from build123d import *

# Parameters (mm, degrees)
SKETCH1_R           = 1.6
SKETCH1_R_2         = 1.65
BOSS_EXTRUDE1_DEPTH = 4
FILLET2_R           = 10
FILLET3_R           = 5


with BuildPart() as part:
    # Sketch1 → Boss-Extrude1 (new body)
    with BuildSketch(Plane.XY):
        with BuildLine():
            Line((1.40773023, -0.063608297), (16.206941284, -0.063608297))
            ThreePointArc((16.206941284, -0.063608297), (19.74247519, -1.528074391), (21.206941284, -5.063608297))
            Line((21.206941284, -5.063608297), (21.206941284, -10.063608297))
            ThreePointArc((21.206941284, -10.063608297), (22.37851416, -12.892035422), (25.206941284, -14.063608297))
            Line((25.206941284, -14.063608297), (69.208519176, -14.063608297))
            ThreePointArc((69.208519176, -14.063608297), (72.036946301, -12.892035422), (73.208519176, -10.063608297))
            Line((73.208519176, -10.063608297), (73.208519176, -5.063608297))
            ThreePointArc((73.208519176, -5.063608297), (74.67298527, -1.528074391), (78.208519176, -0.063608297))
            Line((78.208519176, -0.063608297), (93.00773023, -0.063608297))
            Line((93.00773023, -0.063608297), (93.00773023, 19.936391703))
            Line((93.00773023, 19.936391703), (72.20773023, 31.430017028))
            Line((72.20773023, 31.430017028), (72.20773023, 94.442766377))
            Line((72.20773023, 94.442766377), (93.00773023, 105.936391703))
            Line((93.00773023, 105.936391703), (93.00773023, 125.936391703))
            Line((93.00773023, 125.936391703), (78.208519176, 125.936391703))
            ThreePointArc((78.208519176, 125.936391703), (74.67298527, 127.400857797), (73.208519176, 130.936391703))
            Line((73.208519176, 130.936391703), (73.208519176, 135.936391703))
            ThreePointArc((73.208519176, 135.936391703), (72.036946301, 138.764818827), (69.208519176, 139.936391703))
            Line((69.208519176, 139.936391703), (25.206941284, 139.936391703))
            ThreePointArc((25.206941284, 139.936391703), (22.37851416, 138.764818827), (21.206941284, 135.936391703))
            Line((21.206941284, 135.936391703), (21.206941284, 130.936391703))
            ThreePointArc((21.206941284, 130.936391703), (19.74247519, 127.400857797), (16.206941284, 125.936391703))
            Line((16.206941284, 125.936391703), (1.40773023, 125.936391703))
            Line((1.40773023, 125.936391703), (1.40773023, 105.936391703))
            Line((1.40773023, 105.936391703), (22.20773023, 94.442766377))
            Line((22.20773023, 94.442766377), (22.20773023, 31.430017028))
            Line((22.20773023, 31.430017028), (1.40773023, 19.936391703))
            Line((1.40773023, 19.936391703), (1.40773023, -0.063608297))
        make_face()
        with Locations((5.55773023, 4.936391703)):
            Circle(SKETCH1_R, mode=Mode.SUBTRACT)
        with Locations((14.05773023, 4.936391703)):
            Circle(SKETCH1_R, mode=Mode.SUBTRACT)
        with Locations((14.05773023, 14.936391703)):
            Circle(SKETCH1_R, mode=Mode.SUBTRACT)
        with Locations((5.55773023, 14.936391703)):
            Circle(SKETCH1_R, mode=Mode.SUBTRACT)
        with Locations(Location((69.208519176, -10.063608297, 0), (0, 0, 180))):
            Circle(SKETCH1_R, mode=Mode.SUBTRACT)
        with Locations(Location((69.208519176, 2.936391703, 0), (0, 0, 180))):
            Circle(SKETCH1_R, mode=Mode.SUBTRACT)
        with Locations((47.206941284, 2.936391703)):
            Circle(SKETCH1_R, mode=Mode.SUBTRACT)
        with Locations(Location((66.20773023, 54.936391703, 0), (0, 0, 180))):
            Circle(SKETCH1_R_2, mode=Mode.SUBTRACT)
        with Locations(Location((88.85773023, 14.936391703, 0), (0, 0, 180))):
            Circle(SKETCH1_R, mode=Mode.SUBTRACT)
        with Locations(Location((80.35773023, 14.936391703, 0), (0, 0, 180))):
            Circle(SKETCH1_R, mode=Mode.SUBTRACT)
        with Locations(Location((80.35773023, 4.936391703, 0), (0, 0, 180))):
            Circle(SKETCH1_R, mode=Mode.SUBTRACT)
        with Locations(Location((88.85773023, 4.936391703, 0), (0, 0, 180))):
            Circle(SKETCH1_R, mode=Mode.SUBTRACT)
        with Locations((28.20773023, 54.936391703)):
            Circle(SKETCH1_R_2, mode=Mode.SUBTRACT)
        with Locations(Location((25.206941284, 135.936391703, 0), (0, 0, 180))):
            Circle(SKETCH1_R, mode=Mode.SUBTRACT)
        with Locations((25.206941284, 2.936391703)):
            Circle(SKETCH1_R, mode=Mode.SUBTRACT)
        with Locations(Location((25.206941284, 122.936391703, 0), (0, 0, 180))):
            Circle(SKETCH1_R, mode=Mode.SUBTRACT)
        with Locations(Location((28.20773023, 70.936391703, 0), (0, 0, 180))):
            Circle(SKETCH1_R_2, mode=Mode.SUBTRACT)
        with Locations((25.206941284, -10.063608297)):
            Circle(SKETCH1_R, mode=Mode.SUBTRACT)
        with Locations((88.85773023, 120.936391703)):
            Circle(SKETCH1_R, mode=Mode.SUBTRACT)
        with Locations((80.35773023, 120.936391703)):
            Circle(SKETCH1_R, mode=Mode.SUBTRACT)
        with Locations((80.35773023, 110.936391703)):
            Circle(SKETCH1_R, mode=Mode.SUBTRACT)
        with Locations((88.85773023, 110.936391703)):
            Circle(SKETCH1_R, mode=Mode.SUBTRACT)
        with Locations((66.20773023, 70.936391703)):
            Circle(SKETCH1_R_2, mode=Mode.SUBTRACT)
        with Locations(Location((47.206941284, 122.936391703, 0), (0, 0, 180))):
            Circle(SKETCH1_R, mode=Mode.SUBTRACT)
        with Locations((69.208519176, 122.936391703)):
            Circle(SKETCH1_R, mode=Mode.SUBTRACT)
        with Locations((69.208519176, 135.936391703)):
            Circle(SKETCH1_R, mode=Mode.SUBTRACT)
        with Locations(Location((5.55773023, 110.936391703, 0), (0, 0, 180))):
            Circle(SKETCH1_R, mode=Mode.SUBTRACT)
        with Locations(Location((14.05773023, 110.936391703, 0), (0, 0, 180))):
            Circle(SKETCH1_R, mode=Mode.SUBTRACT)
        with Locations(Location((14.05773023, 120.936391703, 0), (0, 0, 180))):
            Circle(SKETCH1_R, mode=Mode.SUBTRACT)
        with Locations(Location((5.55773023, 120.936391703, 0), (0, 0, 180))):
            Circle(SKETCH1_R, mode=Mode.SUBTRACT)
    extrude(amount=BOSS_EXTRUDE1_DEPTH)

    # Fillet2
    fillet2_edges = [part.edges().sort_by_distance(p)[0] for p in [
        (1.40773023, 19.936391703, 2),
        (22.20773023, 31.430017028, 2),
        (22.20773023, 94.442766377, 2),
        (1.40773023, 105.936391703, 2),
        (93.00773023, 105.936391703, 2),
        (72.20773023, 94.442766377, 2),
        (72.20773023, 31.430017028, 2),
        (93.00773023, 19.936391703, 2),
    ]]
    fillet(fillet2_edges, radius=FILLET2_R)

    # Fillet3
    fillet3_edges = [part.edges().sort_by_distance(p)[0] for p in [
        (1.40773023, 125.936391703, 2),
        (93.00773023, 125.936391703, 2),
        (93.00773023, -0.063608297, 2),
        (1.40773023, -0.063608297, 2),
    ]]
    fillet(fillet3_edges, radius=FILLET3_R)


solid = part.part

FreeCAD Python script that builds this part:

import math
import FreeCAD as App
import Part
import Sketcher

V = App.Vector
Q = App.Units.Quantity


def edges_at(feature, points):
    """Names of the edges that pass closest to the given points."""
    edges = feature.Shape.Edges
    near = lambda p: min(range(len(edges)), key=lambda i: edges[i].distToShape(Part.Vertex(*p))[0])
    return sorted({f"Edge{near(p) + 1}" for p in points})

doc = App.newDocument("Part")
body = doc.addObject("PartDesign::Body", "Body")

sketch1 = doc.addObject("Sketcher::SketchObject", "Sketch")
body.addObject(sketch1)
sketch1.AttachmentSupport = (doc.XY_Plane, [""])
sketch1.MapMode = "FlatFace"
sketch1.addGeometry(Part.LineSegment(V(1.40773, -0.063608, 0), V(16.206941, -0.063608, 0)), False)
sketch1.addGeometry(Part.ArcOfCircle(Part.Circle(V(16.206941, -5.063608, 0), V(0, 0, 1), 5), math.radians(0), math.radians(90)), False)
sketch1.addGeometry(Part.LineSegment(V(21.206941, -5.063608, 0), V(21.206941, -10.063608, 0)), False)
sketch1.addGeometry(Part.ArcOfCircle(Part.Circle(V(25.206941, -10.063608, 0), V(0, 0, 1), 4), math.radians(-180), math.radians(-90)), False)
sketch1.addGeometry(Part.LineSegment(V(25.206941, -14.063608, 0), V(69.208519, -14.063608, 0)), False)
sketch1.addGeometry(Part.ArcOfCircle(Part.Circle(V(69.208519, -10.063608, 0), V(0, 0, 1), 4), math.radians(-90), math.radians(0)), False)
sketch1.addGeometry(Part.LineSegment(V(73.208519, -10.063608, 0), V(73.208519, -5.063608, 0)), False)
sketch1.addGeometry(Part.ArcOfCircle(Part.Circle(V(78.208519, -5.063608, 0), V(0, 0, 1), 5), math.radians(90), math.radians(180)), False)
sketch1.addGeometry(Part.LineSegment(V(78.208519, -0.063608, 0), V(93.00773, -0.063608, 0)), False)
sketch1.addGeometry(Part.LineSegment(V(93.00773, -0.063608, 0), V(93.00773, 19.936392, 0)), False)
sketch1.addGeometry(Part.LineSegment(V(93.00773, 19.936392, 0), V(72.20773, 31.430017, 0)), False)
sketch1.addGeometry(Part.LineSegment(V(72.20773, 31.430017, 0), V(72.20773, 94.442766, 0)), False)
sketch1.addGeometry(Part.LineSegment(V(72.20773, 94.442766, 0), V(93.00773, 105.936392, 0)), False)
sketch1.addGeometry(Part.LineSegment(V(93.00773, 105.936392, 0), V(93.00773, 125.936392, 0)), False)
sketch1.addGeometry(Part.LineSegment(V(93.00773, 125.936392, 0), V(78.208519, 125.936392, 0)), False)
sketch1.addGeometry(Part.ArcOfCircle(Part.Circle(V(78.208519, 130.936392, 0), V(0, 0, 1), 5), math.radians(180), math.radians(270)), False)
sketch1.addGeometry(Part.LineSegment(V(73.208519, 130.936392, 0), V(73.208519, 135.936392, 0)), False)
sketch1.addGeometry(Part.ArcOfCircle(Part.Circle(V(69.208519, 135.936392, 0), V(0, 0, 1), 4), math.radians(0), math.radians(90)), False)
sketch1.addGeometry(Part.LineSegment(V(69.208519, 139.936392, 0), V(25.206941, 139.936392, 0)), False)
sketch1.addGeometry(Part.ArcOfCircle(Part.Circle(V(25.206941, 135.936392, 0), V(0, 0, 1), 4), math.radians(90), math.radians(180)), False)
sketch1.addGeometry(Part.LineSegment(V(21.206941, 135.936392, 0), V(21.206941, 130.936392, 0)), False)
sketch1.addGeometry(Part.ArcOfCircle(Part.Circle(V(16.206941, 130.936392, 0), V(0, 0, 1), 5), math.radians(-90), math.radians(0)), False)
sketch1.addGeometry(Part.LineSegment(V(16.206941, 125.936392, 0), V(1.40773, 125.936392, 0)), False)
sketch1.addGeometry(Part.LineSegment(V(1.40773, 125.936392, 0), V(1.40773, 105.936392, 0)), False)
sketch1.addGeometry(Part.LineSegment(V(1.40773, 105.936392, 0), V(22.20773, 94.442766, 0)), False)
sketch1.addGeometry(Part.LineSegment(V(22.20773, 94.442766, 0), V(22.20773, 31.430017, 0)), False)
sketch1.addGeometry(Part.LineSegment(V(22.20773, 31.430017, 0), V(1.40773, 19.936392, 0)), False)
sketch1.addGeometry(Part.LineSegment(V(1.40773, 19.936392, 0), V(1.40773, -0.063608, 0)), False)
sketch1.addGeometry(Part.Circle(V(5.55773, 4.936392, 0), V(0, 0, 1), 1.6), False)
sketch1.addGeometry(Part.Circle(V(14.05773, 4.936392, 0), V(0, 0, 1), 1.6), False)
sketch1.addGeometry(Part.Circle(V(25.206941, -10.063608, 0), V(0, 0, 1), 1.6), False)
sketch1.addGeometry(Part.Circle(V(25.206941, 2.936392, 0), V(0, 0, 1), 1.6), False)
sketch1.addGeometry(Part.Circle(V(5.55773, 14.936392, 0), V(0, 0, 1), 1.6), False)
sketch1.addGeometry(Part.Circle(V(14.05773, 14.936392, 0), V(0, 0, 1), 1.6), False)
sketch1.addGeometry(Part.Circle(V(47.206941, 2.936392, 0), V(0, 0, 1), 1.6), False)
sketch1.addGeometry(Part.Circle(V(28.20773, 54.936392, 0), V(0, 0, 1), 1.65), False)
sketch1.addGeometry(Part.Circle(V(69.208519, -10.063608, 0), V(0, 0, 1), 1.6), False)
sketch1.addGeometry(Part.Circle(V(69.208519, 2.936392, 0), V(0, 0, 1), 1.6), False)
sketch1.addGeometry(Part.Circle(V(80.35773, 4.936392, 0), V(0, 0, 1), 1.6), False)
sketch1.addGeometry(Part.Circle(V(88.85773, 4.936392, 0), V(0, 0, 1), 1.6), False)
sketch1.addGeometry(Part.Circle(V(80.35773, 14.936392, 0), V(0, 0, 1), 1.6), False)
sketch1.addGeometry(Part.Circle(V(88.85773, 14.936392, 0), V(0, 0, 1), 1.6), False)
sketch1.addGeometry(Part.Circle(V(66.20773, 54.936392, 0), V(0, 0, 1), 1.65), False)
sketch1.addGeometry(Part.Circle(V(28.20773, 70.936392, 0), V(0, 0, 1), 1.65), False)
sketch1.addGeometry(Part.Circle(V(5.55773, 110.936392, 0), V(0, 0, 1), 1.6), False)
sketch1.addGeometry(Part.Circle(V(14.05773, 110.936392, 0), V(0, 0, 1), 1.6), False)
sketch1.addGeometry(Part.Circle(V(5.55773, 120.936392, 0), V(0, 0, 1), 1.6), False)
sketch1.addGeometry(Part.Circle(V(14.05773, 120.936392, 0), V(0, 0, 1), 1.6), False)
sketch1.addGeometry(Part.Circle(V(25.206941, 122.936392, 0), V(0, 0, 1), 1.6), False)
sketch1.addGeometry(Part.Circle(V(25.206941, 135.936392, 0), V(0, 0, 1), 1.6), False)
sketch1.addGeometry(Part.Circle(V(47.206941, 122.936392, 0), V(0, 0, 1), 1.6), False)
sketch1.addGeometry(Part.Circle(V(66.20773, 70.936392, 0), V(0, 0, 1), 1.65), False)
sketch1.addGeometry(Part.Circle(V(80.35773, 110.936392, 0), V(0, 0, 1), 1.6), False)
sketch1.addGeometry(Part.Circle(V(88.85773, 110.936392, 0), V(0, 0, 1), 1.6), False)
sketch1.addGeometry(Part.Circle(V(69.208519, 122.936392, 0), V(0, 0, 1), 1.6), False)
sketch1.addGeometry(Part.Circle(V(69.208519, 135.936392, 0), V(0, 0, 1), 1.6), False)
sketch1.addGeometry(Part.Circle(V(80.35773, 120.936392, 0), V(0, 0, 1), 1.6), False)
sketch1.addGeometry(Part.Circle(V(88.85773, 120.936392, 0), V(0, 0, 1), 1.6), False)
sketch1.addConstraint(Sketcher.Constraint("Tangent", 0, 2, 1, 2))
sketch1.addConstraint(Sketcher.Constraint("Tangent", 1, 1, 2, 1))
sketch1.addConstraint(Sketcher.Constraint("Tangent", 2, 2, 3, 1))
sketch1.addConstraint(Sketcher.Constraint("Tangent", 3, 2, 4, 1))
sketch1.addConstraint(Sketcher.Constraint("Tangent", 4, 2, 5, 1))
sketch1.addConstraint(Sketcher.Constraint("Tangent", 5, 2, 6, 1))
sketch1.addConstraint(Sketcher.Constraint("Tangent", 6, 2, 7, 2))
sketch1.addConstraint(Sketcher.Constraint("Tangent", 7, 1, 8, 1))
sketch1.addConstraint(Sketcher.Constraint("Coincident", 8, 2, 9, 1))
sketch1.addConstraint(Sketcher.Constraint("Coincident", 9, 2, 10, 1))
sketch1.addConstraint(Sketcher.Constraint("Coincident", 10, 2, 11, 1))
sketch1.addConstraint(Sketcher.Constraint("Coincident", 11, 2, 12, 1))
sketch1.addConstraint(Sketcher.Constraint("Coincident", 12, 2, 13, 1))
sketch1.addConstraint(Sketcher.Constraint("Coincident", 13, 2, 14, 1))
sketch1.addConstraint(Sketcher.Constraint("Tangent", 14, 2, 15, 2))
sketch1.addConstraint(Sketcher.Constraint("Tangent", 15, 1, 16, 1))
sketch1.addConstraint(Sketcher.Constraint("Tangent", 16, 2, 17, 1))
sketch1.addConstraint(Sketcher.Constraint("Tangent", 17, 2, 18, 1))
sketch1.addConstraint(Sketcher.Constraint("Tangent", 18, 2, 19, 1))
sketch1.addConstraint(Sketcher.Constraint("Tangent", 19, 2, 20, 1))
sketch1.addConstraint(Sketcher.Constraint("Tangent", 20, 2, 21, 2))
sketch1.addConstraint(Sketcher.Constraint("Tangent", 21, 1, 22, 1))
sketch1.addConstraint(Sketcher.Constraint("Coincident", 22, 2, 23, 1))
sketch1.addConstraint(Sketcher.Constraint("Coincident", 23, 2, 24, 1))
sketch1.addConstraint(Sketcher.Constraint("Coincident", 24, 2, 25, 1))
sketch1.addConstraint(Sketcher.Constraint("Coincident", 25, 2, 26, 1))
sketch1.addConstraint(Sketcher.Constraint("Coincident", 26, 2, 27, 1))
sketch1.addConstraint(Sketcher.Constraint("Coincident", 27, 2, 0, 1))
sketch1.addConstraint(Sketcher.Constraint("Horizontal", 0))
sketch1.addConstraint(Sketcher.Constraint("Vertical", 2))
sketch1.addConstraint(Sketcher.Constraint("Horizontal", 4))
sketch1.addConstraint(Sketcher.Constraint("Vertical", 6))
sketch1.addConstraint(Sketcher.Constraint("Horizontal", 8))
sketch1.addConstraint(Sketcher.Constraint("Vertical", 9))
sketch1.addConstraint(Sketcher.Constraint("Vertical", 11))
sketch1.addConstraint(Sketcher.Constraint("Vertical", 13))
sketch1.addConstraint(Sketcher.Constraint("Horizontal", 14))
sketch1.addConstraint(Sketcher.Constraint("Vertical", 16))
sketch1.addConstraint(Sketcher.Constraint("Horizontal", 18))
sketch1.addConstraint(Sketcher.Constraint("Vertical", 20))
sketch1.addConstraint(Sketcher.Constraint("Horizontal", 22))
sketch1.addConstraint(Sketcher.Constraint("Vertical", 23))
sketch1.addConstraint(Sketcher.Constraint("Vertical", 25))
sketch1.addConstraint(Sketcher.Constraint("Vertical", 27))
sketch1.addConstraint(Sketcher.Constraint("Coincident", 30, 3, 3, 3))
sketch1.addConstraint(Sketcher.Constraint("Coincident", 36, 3, 5, 3))
sketch1.addConstraint(Sketcher.Constraint("Coincident", 49, 3, 19, 3))
sketch1.addConstraint(Sketcher.Constraint("Coincident", 55, 3, 17, 3))
sketch1.addConstraint(Sketcher.Constraint("Equal", 3, 5))
sketch1.addConstraint(Sketcher.Constraint("Equal", 1, 7))
sketch1.addConstraint(Sketcher.Constraint("Equal", 7, 15))
sketch1.addConstraint(Sketcher.Constraint("Equal", 5, 17))
sketch1.addConstraint(Sketcher.Constraint("Equal", 17, 19))
sketch1.addConstraint(Sketcher.Constraint("Equal", 15, 21))
sketch1.addConstraint(Sketcher.Constraint("Equal", 28, 29))
sketch1.addConstraint(Sketcher.Constraint("Equal", 29, 30))
sketch1.addConstraint(Sketcher.Constraint("Equal", 30, 31))
sketch1.addConstraint(Sketcher.Constraint("Equal", 31, 32))
sketch1.addConstraint(Sketcher.Constraint("Equal", 32, 33))
sketch1.addConstraint(Sketcher.Constraint("Equal", 33, 34))
sketch1.addConstraint(Sketcher.Constraint("Equal", 34, 36))
sketch1.addConstraint(Sketcher.Constraint("Equal", 36, 37))
sketch1.addConstraint(Sketcher.Constraint("Equal", 37, 38))
sketch1.addConstraint(Sketcher.Constraint("Equal", 38, 39))
sketch1.addConstraint(Sketcher.Constraint("Equal", 39, 40))
sketch1.addConstraint(Sketcher.Constraint("Equal", 40, 41))
sketch1.addConstraint(Sketcher.Constraint("Equal", 35, 42))
sketch1.addConstraint(Sketcher.Constraint("Equal", 42, 43))
sketch1.addConstraint(Sketcher.Constraint("Equal", 41, 44))
sketch1.addConstraint(Sketcher.Constraint("Equal", 44, 45))
sketch1.addConstraint(Sketcher.Constraint("Equal", 45, 46))
sketch1.addConstraint(Sketcher.Constraint("Equal", 46, 47))
sketch1.addConstraint(Sketcher.Constraint("Equal", 47, 48))
sketch1.addConstraint(Sketcher.Constraint("Equal", 48, 49))
sketch1.addConstraint(Sketcher.Constraint("Equal", 49, 50))
sketch1.addConstraint(Sketcher.Constraint("Equal", 43, 51))
sketch1.addConstraint(Sketcher.Constraint("Equal", 50, 52))
sketch1.addConstraint(Sketcher.Constraint("Equal", 52, 53))
sketch1.addConstraint(Sketcher.Constraint("Equal", 53, 54))
sketch1.addConstraint(Sketcher.Constraint("Equal", 54, 55))
sketch1.addConstraint(Sketcher.Constraint("Equal", 55, 56))
sketch1.addConstraint(Sketcher.Constraint("Equal", 56, 57))
sketch1.addConstraint(Sketcher.Constraint("Parallel", 10, 24))
sketch1.addConstraint(Sketcher.Constraint("Parallel", 12, 26))
sketch1.addConstraint(Sketcher.Constraint("Horizontal", 1, 3, 7, 3))
sketch1.addConstraint(Sketcher.Constraint("Horizontal", 15, 3, 21, 3))
sketch1.addConstraint(Sketcher.Constraint("Horizontal", 28, 3, 29, 3))
sketch1.addConstraint(Sketcher.Constraint("Horizontal", 32, 3, 33, 3))
sketch1.addConstraint(Sketcher.Constraint("Horizontal", 31, 3, 34, 3))
sketch1.addConstraint(Sketcher.Constraint("Horizontal", 34, 3, 37, 3))
sketch1.addConstraint(Sketcher.Constraint("Horizontal", 29, 3, 38, 3))
sketch1.addConstraint(Sketcher.Constraint("Horizontal", 38, 3, 39, 3))
sketch1.addConstraint(Sketcher.Constraint("Horizontal", 33, 3, 40, 3))
sketch1.addConstraint(Sketcher.Constraint("Horizontal", 40, 3, 41, 3))
sketch1.addConstraint(Sketcher.Constraint("Horizontal", 35, 3, 42, 3))
sketch1.addConstraint(Sketcher.Constraint("Horizontal", 44, 3, 45, 3))
sketch1.addConstraint(Sketcher.Constraint("Horizontal", 46, 3, 47, 3))
sketch1.addConstraint(Sketcher.Constraint("Horizontal", 48, 3, 50, 3))
sketch1.addConstraint(Sketcher.Constraint("Horizontal", 43, 3, 51, 3))
sketch1.addConstraint(Sketcher.Constraint("Horizontal", 45, 3, 52, 3))
sketch1.addConstraint(Sketcher.Constraint("Horizontal", 52, 3, 53, 3))
sketch1.addConstraint(Sketcher.Constraint("Horizontal", 50, 3, 54, 3))
sketch1.addConstraint(Sketcher.Constraint("Horizontal", 47, 3, 56, 3))
sketch1.addConstraint(Sketcher.Constraint("Horizontal", 56, 3, 57, 3))
sketch1.addConstraint(Sketcher.Constraint("Horizontal", 12, 2, 23, 2))
sketch1.addConstraint(Sketcher.Constraint("Horizontal", 11, 2, 24, 2))
sketch1.addConstraint(Sketcher.Constraint("Horizontal", 10, 2, 25, 2))
sketch1.addConstraint(Sketcher.Constraint("Horizontal", 9, 2, 26, 2))
sketch1.addConstraint(Sketcher.Constraint("Vertical", 7, 3, 15, 3))
sketch1.addConstraint(Sketcher.Constraint("Vertical", 3, 3, 19, 3))
sketch1.addConstraint(Sketcher.Constraint("Vertical", 30, 3, 31, 3))
sketch1.addConstraint(Sketcher.Constraint("Vertical", 28, 3, 32, 3))
sketch1.addConstraint(Sketcher.Constraint("Vertical", 29, 3, 33, 3))
sketch1.addConstraint(Sketcher.Constraint("Vertical", 36, 3, 37, 3))
sketch1.addConstraint(Sketcher.Constraint("Vertical", 38, 3, 40, 3))
sketch1.addConstraint(Sketcher.Constraint("Vertical", 39, 3, 41, 3))
sketch1.addConstraint(Sketcher.Constraint("Vertical", 35, 3, 43, 3))
sketch1.addConstraint(Sketcher.Constraint("Vertical", 32, 3, 44, 3))
sketch1.addConstraint(Sketcher.Constraint("Vertical", 33, 3, 45, 3))
sketch1.addConstraint(Sketcher.Constraint("Vertical", 44, 3, 46, 3))
sketch1.addConstraint(Sketcher.Constraint("Vertical", 45, 3, 47, 3))
sketch1.addConstraint(Sketcher.Constraint("Vertical", 31, 3, 48, 3))
sketch1.addConstraint(Sketcher.Constraint("Vertical", 34, 3, 50, 3))
sketch1.addConstraint(Sketcher.Constraint("Vertical", 42, 3, 51, 3))
sketch1.addConstraint(Sketcher.Constraint("Vertical", 40, 3, 52, 3))
sketch1.addConstraint(Sketcher.Constraint("Vertical", 41, 3, 53, 3))
sketch1.addConstraint(Sketcher.Constraint("Vertical", 37, 3, 54, 3))
sketch1.addConstraint(Sketcher.Constraint("Vertical", 52, 3, 56, 3))
sketch1.addConstraint(Sketcher.Constraint("Vertical", 53, 3, 57, 3))
sketch1.addConstraint(Sketcher.Constraint("Vertical", 9, 2, 12, 2))
sketch1.addConstraint(Sketcher.Constraint("Vertical", 23, 2, 26, 2))
sketch1.addConstraint(Sketcher.Constraint("Equal", 0, 8))
sketch1.addConstraint(Sketcher.Constraint("Equal", 9, 13))
sketch1.addConstraint(Sketcher.Constraint("Equal", 6, 16))
sketch1.addConstraint(Sketcher.Constraint("Radius", 1, Q("5 mm")))
sketch1.addConstraint(Sketcher.Constraint("Radius", 3, Q("4 mm")))
sketch1.addConstraint(Sketcher.Constraint("Diameter", 28, Q("3.2 mm")))
sketch1.addConstraint(Sketcher.Constraint("Diameter", 35, Q("3.3 mm")))
sketch1.addConstraint(Sketcher.Constraint("DistanceY", 2, 2, 2, 1, Q("5 mm")))
sketch1.addConstraint(Sketcher.Constraint("DistanceY", 9, 1, 9, 2, Q("20 mm")))
sketch1.addConstraint(Sketcher.Constraint("DistanceX", 0, 1, 0, 2, Q("14.799211 mm")))
sketch1.addConstraint(Sketcher.Constraint("DistanceY", 11, 1, 11, 2, Q("63.012749 mm")))
sketch1.addConstraint(Sketcher.Constraint("Distance", 10, Q("23.764331 mm")))
sketch1.addConstraint(Sketcher.Constraint("DistanceX", 4, 1, 4, 2, Q("44.001578 mm")))
sketch1.addConstraint(Sketcher.Constraint("DistanceX", -1, 1, 1, 3, Q("16.206941 mm")))
sketch1.addConstraint(Sketcher.Constraint("DistanceY", 1, 3, -1, 1, Q("5.063608 mm")))
sketch1.addConstraint(Sketcher.Constraint("DistanceY", -1, 1, 15, 3, Q("130.936392 mm")))
sketch1.addConstraint(Sketcher.Constraint("DistanceX", -1, 1, 28, 3, Q("5.55773 mm")))
sketch1.addConstraint(Sketcher.Constraint("DistanceY", -1, 1, 28, 3, Q("4.936392 mm")))
sketch1.addConstraint(Sketcher.Constraint("DistanceX", -1, 1, 29, 3, Q("14.05773 mm")))
sketch1.addConstraint(Sketcher.Constraint("DistanceY", -1, 1, 31, 3, Q("2.936392 mm")))
sketch1.addConstraint(Sketcher.Constraint("DistanceY", -1, 1, 32, 3, Q("14.936392 mm")))
sketch1.addConstraint(Sketcher.Constraint("DistanceX", -1, 1, 34, 3, Q("47.206941 mm")))
sketch1.addConstraint(Sketcher.Constraint("DistanceX", -1, 1, 35, 3, Q("28.20773 mm")))
sketch1.addConstraint(Sketcher.Constraint("DistanceY", -1, 1, 35, 3, Q("54.936392 mm")))
sketch1.addConstraint(Sketcher.Constraint("DistanceX", -1, 1, 38, 3, Q("80.35773 mm")))
sketch1.addConstraint(Sketcher.Constraint("DistanceX", -1, 1, 39, 3, Q("88.85773 mm")))
sketch1.addConstraint(Sketcher.Constraint("DistanceX", -1, 1, 42, 3, Q("66.20773 mm")))
sketch1.addConstraint(Sketcher.Constraint("DistanceY", -1, 1, 43, 3, Q("70.936392 mm")))
sketch1.addConstraint(Sketcher.Constraint("DistanceY", -1, 1, 44, 3, Q("110.936392 mm")))
sketch1.addConstraint(Sketcher.Constraint("DistanceY", -1, 1, 46, 3, Q("120.936392 mm")))
sketch1.addConstraint(Sketcher.Constraint("DistanceY", -1, 1, 48, 3, Q("122.936392 mm")))
pad1 = doc.addObject("PartDesign::Pad", "Pad")
body.addObject(pad1)
pad1.Profile = sketch1
pad1.Length = 4
doc.recompute()

fillet = doc.addObject("PartDesign::Fillet", "Fillet")
body.addObject(fillet)
fillet.Base = (pad1, edges_at(pad1, [
    (1.408, 19.936, 2),
    (22.208, 31.43, 2),
    (22.208, 94.443, 2),
    (1.408, 105.936, 2),
    (93.008, 105.936, 2),
    (72.208, 94.443, 2),
    (72.208, 31.43, 2),
    (93.008, 19.936, 2),
]))
fillet.Radius = 10
doc.recompute()

fillet2 = doc.addObject("PartDesign::Fillet", "Fillet001")
body.addObject(fillet2)
fillet2.Base = (fillet, edges_at(fillet, [
    (1.408, 125.936, 2),
    (93.008, 125.936, 2),
    (93.008, -0.064, 2),
    (1.408, -0.064, 2),
]))
fillet2.Radius = 5

doc.recompute()
